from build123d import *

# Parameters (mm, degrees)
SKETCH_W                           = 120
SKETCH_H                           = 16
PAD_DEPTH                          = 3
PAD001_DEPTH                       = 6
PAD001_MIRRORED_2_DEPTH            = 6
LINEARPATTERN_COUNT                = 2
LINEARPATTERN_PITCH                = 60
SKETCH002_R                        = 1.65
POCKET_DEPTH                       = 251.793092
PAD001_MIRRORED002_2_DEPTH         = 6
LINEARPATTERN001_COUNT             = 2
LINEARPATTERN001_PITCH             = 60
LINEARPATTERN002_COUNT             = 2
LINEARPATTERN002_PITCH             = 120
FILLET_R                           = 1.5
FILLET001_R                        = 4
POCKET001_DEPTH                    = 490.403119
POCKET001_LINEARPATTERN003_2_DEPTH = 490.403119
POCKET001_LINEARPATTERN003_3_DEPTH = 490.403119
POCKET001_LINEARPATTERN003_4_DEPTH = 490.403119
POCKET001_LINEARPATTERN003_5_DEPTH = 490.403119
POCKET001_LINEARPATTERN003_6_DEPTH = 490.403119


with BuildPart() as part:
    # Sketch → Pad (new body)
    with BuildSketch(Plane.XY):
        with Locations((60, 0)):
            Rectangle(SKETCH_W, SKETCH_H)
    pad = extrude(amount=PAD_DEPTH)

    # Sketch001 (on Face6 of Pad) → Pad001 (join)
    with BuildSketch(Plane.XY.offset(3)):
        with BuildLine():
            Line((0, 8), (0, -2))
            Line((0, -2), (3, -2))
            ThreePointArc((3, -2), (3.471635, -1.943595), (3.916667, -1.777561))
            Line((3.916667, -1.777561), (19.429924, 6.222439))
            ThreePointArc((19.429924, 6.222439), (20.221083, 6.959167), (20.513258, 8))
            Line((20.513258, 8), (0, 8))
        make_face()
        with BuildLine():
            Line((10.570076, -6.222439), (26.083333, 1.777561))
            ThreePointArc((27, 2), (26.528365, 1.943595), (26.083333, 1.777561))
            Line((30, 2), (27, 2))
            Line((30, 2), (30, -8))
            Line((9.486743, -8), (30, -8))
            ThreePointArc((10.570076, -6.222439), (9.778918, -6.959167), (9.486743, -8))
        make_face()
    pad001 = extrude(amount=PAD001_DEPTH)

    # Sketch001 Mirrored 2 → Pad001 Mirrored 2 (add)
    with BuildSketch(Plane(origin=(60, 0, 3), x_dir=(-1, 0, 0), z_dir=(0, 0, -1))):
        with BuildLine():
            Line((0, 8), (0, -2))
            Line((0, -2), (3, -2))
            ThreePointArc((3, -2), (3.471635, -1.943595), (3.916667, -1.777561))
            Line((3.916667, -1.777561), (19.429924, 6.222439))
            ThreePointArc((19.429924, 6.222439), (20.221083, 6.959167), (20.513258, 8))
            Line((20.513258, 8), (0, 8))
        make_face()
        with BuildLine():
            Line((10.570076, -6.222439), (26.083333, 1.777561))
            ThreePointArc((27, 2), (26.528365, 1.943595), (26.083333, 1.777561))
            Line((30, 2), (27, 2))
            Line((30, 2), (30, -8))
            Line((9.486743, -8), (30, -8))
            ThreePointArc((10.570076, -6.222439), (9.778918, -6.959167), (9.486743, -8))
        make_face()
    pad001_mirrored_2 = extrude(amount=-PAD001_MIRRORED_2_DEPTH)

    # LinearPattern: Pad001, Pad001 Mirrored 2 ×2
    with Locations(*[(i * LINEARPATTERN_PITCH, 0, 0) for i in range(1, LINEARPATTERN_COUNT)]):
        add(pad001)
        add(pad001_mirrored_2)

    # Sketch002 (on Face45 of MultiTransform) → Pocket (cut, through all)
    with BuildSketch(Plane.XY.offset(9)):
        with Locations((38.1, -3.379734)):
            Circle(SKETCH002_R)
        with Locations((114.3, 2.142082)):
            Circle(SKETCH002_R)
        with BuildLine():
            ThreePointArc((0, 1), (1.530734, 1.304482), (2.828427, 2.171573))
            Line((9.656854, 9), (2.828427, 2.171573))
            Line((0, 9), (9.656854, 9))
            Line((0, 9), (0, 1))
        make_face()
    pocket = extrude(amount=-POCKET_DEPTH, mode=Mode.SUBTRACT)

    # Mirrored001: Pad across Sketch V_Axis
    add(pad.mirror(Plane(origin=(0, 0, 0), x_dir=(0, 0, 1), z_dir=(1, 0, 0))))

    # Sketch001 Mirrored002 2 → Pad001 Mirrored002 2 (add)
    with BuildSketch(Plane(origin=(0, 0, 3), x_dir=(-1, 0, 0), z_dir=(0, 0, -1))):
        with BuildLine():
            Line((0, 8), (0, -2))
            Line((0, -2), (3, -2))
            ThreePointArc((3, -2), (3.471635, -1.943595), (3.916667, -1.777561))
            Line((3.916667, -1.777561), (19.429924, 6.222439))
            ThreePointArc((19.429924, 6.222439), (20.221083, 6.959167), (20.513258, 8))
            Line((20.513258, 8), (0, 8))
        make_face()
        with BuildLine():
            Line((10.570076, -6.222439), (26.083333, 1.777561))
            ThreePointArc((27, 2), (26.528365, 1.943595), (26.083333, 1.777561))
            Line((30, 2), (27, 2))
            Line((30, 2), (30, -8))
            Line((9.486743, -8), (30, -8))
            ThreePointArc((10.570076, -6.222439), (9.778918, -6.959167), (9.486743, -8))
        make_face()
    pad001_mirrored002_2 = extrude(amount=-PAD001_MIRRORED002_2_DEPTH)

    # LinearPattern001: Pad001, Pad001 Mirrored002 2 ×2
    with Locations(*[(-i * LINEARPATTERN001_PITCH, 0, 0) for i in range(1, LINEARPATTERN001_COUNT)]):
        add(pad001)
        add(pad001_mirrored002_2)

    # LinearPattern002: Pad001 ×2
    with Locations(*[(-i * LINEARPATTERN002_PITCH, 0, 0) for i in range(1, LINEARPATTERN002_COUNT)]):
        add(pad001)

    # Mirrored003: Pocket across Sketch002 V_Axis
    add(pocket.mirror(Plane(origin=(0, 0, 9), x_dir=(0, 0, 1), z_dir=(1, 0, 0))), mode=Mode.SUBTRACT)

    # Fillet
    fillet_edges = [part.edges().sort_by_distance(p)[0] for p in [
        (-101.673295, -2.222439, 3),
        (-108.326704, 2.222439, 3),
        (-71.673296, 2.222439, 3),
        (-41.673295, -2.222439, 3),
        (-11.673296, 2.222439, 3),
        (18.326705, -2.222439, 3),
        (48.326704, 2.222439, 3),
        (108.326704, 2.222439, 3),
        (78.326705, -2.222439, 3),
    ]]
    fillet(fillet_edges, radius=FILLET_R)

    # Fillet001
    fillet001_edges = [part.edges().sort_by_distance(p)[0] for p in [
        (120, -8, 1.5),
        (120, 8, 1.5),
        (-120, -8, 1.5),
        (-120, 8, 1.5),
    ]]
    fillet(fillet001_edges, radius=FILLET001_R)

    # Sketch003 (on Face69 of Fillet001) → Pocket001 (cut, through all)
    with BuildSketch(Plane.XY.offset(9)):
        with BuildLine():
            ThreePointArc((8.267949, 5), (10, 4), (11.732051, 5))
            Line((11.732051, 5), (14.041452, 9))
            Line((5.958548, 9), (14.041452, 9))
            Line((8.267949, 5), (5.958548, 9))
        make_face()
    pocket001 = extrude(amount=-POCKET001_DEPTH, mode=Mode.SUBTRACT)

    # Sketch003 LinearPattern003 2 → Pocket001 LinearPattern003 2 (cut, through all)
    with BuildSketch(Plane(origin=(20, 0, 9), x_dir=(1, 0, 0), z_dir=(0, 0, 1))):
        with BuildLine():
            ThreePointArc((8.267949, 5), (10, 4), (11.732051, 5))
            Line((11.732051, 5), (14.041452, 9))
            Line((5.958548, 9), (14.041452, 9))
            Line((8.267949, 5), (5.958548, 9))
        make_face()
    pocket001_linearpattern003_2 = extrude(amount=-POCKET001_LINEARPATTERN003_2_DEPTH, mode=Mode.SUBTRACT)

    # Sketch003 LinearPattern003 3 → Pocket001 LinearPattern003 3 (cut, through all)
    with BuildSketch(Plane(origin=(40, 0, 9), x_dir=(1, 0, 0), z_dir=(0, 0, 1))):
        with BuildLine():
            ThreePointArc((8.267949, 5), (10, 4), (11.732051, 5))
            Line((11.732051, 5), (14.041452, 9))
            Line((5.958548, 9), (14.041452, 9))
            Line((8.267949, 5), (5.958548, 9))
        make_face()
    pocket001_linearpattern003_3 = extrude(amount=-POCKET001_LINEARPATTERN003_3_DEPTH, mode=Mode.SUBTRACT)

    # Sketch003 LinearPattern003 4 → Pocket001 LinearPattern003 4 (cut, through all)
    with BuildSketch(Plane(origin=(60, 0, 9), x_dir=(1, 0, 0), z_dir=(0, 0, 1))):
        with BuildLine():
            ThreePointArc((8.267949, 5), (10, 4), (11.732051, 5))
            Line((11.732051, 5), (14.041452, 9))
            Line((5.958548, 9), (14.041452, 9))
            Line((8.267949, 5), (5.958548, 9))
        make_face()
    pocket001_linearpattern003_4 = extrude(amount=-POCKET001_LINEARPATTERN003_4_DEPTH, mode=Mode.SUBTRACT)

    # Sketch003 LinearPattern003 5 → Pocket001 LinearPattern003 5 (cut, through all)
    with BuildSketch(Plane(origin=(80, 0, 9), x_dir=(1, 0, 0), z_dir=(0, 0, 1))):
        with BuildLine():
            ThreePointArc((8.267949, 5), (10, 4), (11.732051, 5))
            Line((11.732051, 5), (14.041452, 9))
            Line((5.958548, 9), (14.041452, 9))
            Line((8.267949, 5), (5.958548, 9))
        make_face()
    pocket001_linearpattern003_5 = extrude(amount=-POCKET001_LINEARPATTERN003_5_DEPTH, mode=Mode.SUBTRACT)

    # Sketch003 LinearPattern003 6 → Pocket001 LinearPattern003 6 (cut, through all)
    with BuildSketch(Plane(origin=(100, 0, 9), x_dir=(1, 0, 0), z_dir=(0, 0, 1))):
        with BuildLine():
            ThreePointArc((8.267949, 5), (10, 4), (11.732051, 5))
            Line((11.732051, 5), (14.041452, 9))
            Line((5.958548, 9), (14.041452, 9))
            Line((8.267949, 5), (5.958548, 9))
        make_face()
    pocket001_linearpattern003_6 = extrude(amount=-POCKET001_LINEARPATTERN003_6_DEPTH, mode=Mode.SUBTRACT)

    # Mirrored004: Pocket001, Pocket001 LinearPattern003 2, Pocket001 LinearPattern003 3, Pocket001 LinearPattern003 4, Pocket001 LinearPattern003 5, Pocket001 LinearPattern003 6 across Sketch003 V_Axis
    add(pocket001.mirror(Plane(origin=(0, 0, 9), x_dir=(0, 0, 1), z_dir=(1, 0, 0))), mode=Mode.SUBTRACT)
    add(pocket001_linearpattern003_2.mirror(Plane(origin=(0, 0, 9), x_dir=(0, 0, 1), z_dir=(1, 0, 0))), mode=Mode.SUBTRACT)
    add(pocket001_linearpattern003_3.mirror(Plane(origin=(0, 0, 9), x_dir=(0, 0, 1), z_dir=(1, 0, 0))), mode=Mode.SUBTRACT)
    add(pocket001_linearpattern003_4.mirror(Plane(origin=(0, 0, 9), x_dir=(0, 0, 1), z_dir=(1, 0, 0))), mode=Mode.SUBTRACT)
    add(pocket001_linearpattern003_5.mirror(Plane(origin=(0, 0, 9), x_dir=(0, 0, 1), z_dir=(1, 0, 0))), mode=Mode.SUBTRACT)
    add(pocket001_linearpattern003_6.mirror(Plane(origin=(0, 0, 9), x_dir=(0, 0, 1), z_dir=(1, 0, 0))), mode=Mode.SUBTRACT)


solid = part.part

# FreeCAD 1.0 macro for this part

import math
import FreeCAD as App
import Part
import Sketcher
from FreeCAD import Vector
Q = App.Units.Quantity


def edges_at(feature, points):
    """Names of the edges that pass closest to the given points."""
    edges = feature.Shape.Edges
    near = lambda p: min(range(len(edges)), key=lambda i: edges[i].distToShape(Part.Vertex(*p))[0])
    return sorted({f"Edge{near(p) + 1}" for p in points})

doc = App.newDocument("Part")
body = doc.addObject("PartDesign::Body", "Body")

sketch1 = doc.addObject("Sketcher::SketchObject", "Sketch")
body.addObject(sketch1)
sketch1.AttachmentSupport = (doc.XY_Plane, [""])
sketch1.MapMode = "FlatFace"
sketch1.addGeometry(Part.LineSegment(Vector(0, 8, 0), Vector(0, -8, 0)), False)
sketch1.addGeometry(Part.LineSegment(Vector(0, -8, 0), Vector(120, -8, 0)), False)
sketch1.addGeometry(Part.LineSegment(Vector(120, -8, 0), Vector(120, 8, 0)), False)
sketch1.addGeometry(Part.LineSegment(Vector(120, 8, 0), Vector(0, 8, 0)), False)
sketch1.addConstraint(Sketcher.Constraint("Coincident", 0, 2, 1, 1))
sketch1.addConstraint(Sketcher.Constraint("Coincident", 1, 2, 2, 1))
sketch1.addConstraint(Sketcher.Constraint("Coincident", 2, 2, 3, 1))
sketch1.addConstraint(Sketcher.Constraint("Coincident", 3, 2, 0, 1))
sketch1.addConstraint(Sketcher.Constraint("Vertical", 0))
sketch1.addConstraint(Sketcher.Constraint("Horizontal", 1))
sketch1.addConstraint(Sketcher.Constraint("Vertical", 2))
sketch1.addConstraint(Sketcher.Constraint("Horizontal", 3))
sketch1.addConstraint(Sketcher.Constraint("Symmetric", 0, 2, 3, 2, -1, 1))
sketch1.addConstraint(Sketcher.Constraint("DistanceX", 1, 1, 1, 2, 120.0))
sketch1.addConstraint(Sketcher.Constraint("DistanceY", 0, 2, 0, 1, 16.0))
pad1 = doc.addObject("PartDesign::Pad", "Pad")
body.addObject(pad1)
pad1.Profile = sketch1
pad1.Length = 3

sketch2 = doc.addObject("Sketcher::SketchObject", "Sketch001")
body.addObject(sketch2)
sketch2.AttachmentSupport = (doc.XY_Plane, [""])
sketch2.MapMode = "FlatFace"
sketch2.AttachmentOffset = App.Placement(Vector(0, 0, 3), App.Rotation())
sketch2.addGeometry(Part.LineSegment(Vector(0, 8, 0), Vector(0, -2, 0)), False)
sketch2.addGeometry(Part.LineSegment(Vector(0, -2, 0), Vector(3, -2, 0)), False)
sketch2.addGeometry(Part.ArcOfCircle(Part.Circle(Vector(3, 0, 0), Vector(0, 0, 1), 2), math.radians(-90), math.radians(-63)), False)
sketch2.addGeometry(Part.LineSegment(Vector(3.9, -1.8, 0), Vector(19.4, 6.2, 0)), False)
sketch2.addGeometry(Part.ArcOfCircle(Part.Circle(Vector(18.5, 8, 0), Vector(0, 0, 1), 2), math.radians(-63), math.radians(0)), False)
sketch2.addGeometry(Part.LineSegment(Vector(20.5, 8, 0), Vector(0, 8, 0)), False)
sketch2.addGeometry(Part.LineSegment(Vector(26.1, 1.8, 0), Vector(10.6, -6.2, 0)), False)
sketch2.addGeometry(Part.ArcOfCircle(Part.Circle(Vector(11.5, -8, 0), Vector(0, 0, 1), 2), math.radians(117), math.radians(180)), False)
sketch2.addGeometry(Part.LineSegment(Vector(9.5, -8, 0), Vector(30, -8, 0)), False)
sketch2.addGeometry(Part.LineSegment(Vector(30, -8, 0), Vector(30, 2, 0)), False)
sketch2.addGeometry(Part.LineSegment(Vector(30, 2, 0), Vector(27, 2, 0)), False)
sketch2.addGeometry(Part.ArcOfCircle(Part.Circle(Vector(27, 0, 0), Vector(0, 0, 1), 2), math.radians(90), math.radians(117)), False)
sketch2.addConstraint(Sketcher.Constraint("Coincident", 0, 2, 1, 1))
sketch2.addConstraint(Sketcher.Constraint("Tangent", 1, 2, 2, 1))
sketch2.addConstraint(Sketcher.Constraint("Tangent", 2, 2, 3, 1))
sketch2.addConstraint(Sketcher.Constraint("Tangent", 3, 2, 4, 1))
sketch2.addConstraint(Sketcher.Constraint("Coincident", 4, 2, 5, 1))
sketch2.addConstraint(Sketcher.Constraint("Coincident", 5, 2, 0, 1))
sketch2.addConstraint(Sketcher.Constraint("Tangent", 6, 2, 7, 1))
sketch2.addConstraint(Sketcher.Constraint("Coincident", 7, 2, 8, 1))
sketch2.addConstraint(Sketcher.Constraint("Coincident", 8, 2, 9, 1))
sketch2.addConstraint(Sketcher.Constraint("Coincident", 9, 2, 10, 1))
sketch2.addConstraint(Sketcher.Constraint("Tangent", 10, 2, 11, 1))
sketch2.addConstraint(Sketcher.Constraint("Tangent", 11, 2, 6, 1))
sketch2.addConstraint(Sketcher.Constraint("Vertical", 0))
sketch2.addConstraint(Sketcher.Constraint("Horizontal", 1))
sketch2.addConstraint(Sketcher.Constraint("Horizontal", 5))
sketch2.addConstraint(Sketcher.Constraint("Horizontal", 8))
sketch2.addConstraint(Sketcher.Constraint("Vertical", 9))
sketch2.addConstraint(Sketcher.Constraint("Horizontal", 10))
sketch2.addConstraint(Sketcher.Constraint("Equal", 4, 7))
sketch2.addConstraint(Sketcher.Constraint("Equal", 2, 11))
sketch2.addConstraint(Sketcher.Constraint("PointOnObject", 0, 2, -2))
sketch2.addConstraint(Sketcher.Constraint("Parallel", 3, 6))
sketch2.addConstraint(Sketcher.Constraint("Equal", 5, 8))
sketch2.addConstraint(Sketcher.Constraint("Equal", 1, 10))
sketch2.addConstraint(Sketcher.Constraint("Equal", 0, 9))
sketch2.addConstraint(Sketcher.Constraint("Radius", 4, 2.0))
sketch2.addConstraint(Sketcher.Constraint("DistanceX", 1, 1, 1, 2, 3.0))
sketch2.addConstraint(Sketcher.Constraint("DistanceY", 0, 2, 0, 1, 10.0))
sketch2.addConstraint(Sketcher.Constraint("DistanceY", -1, 1, 4, 3, 8.0))
sketch2.addConstraint(Sketcher.Constraint("DistanceY", 7, 3, -1, 1, 8.000001))
sketch2.addConstraint(Sketcher.Constraint("DistanceX", -1, 1, 11, 3, 26.999999))
sketch2.addConstraint(Sketcher.Constraint("DistanceY", 0, 2, -1, 1, 2.0))
sketch2.addConstraint(Sketcher.Constraint("DistanceY", 2, 2, 3, 2, 8.0))
sketch2.addConstraint(Sketcher.Constraint("DistanceX", 5, 2, 5, 1, 20.513258))
pad2 = doc.addObject("PartDesign::Pad", "Pad001")
body.addObject(pad2)
pad2.Profile = sketch2
pad2.Length = 6

sketch3 = doc.addObject("Sketcher::SketchObject", "Sketch002")
body.addObject(sketch3)
sketch3.AttachmentSupport = (doc.XY_Plane, [""])
sketch3.MapMode = "FlatFace"
sketch3.AttachmentOffset = App.Placement(Vector(0, 0, 3), App.Rotation())
sketch3.addGeometry(Part.LineSegment(Vector(60, 8, 0), Vector(60, -2, 0)), False)
sketch3.addGeometry(Part.LineSegment(Vector(60, -2, 0), Vector(57, -2, 0)), False)
sketch3.addGeometry(Part.ArcOfCircle(Part.Circle(Vector(57, 0, 0), Vector(0, 0, 1), 2), math.radians(-117), math.radians(-90)), False)
sketch3.addGeometry(Part.LineSegment(Vector(56.1, -1.8, 0), Vector(40.6, 6.2, 0)), False)
sketch3.addGeometry(Part.ArcOfCircle(Part.Circle(Vector(41.5, 8, 0), Vector(0, 0, 1), 2), math.radians(-180), math.radians(-117)), False)
sketch3.addGeometry(Part.LineSegment(Vector(39.5, 8, 0), Vector(60, 8, 0)), False)
sketch3.addGeometry(Part.LineSegment(Vector(33.9, 1.8, 0), Vector(49.4, -6.2, 0)), False)
sketch3.addGeometry(Part.ArcOfCircle(Part.Circle(Vector(48.5, -8, 0), Vector(0, 0, 1), 2), math.radians(0), math.radians(63)), False)
sketch3.addGeometry(Part.LineSegment(Vector(50.5, -8, 0), Vector(30, -8, 0)), False)
sketch3.addGeometry(Part.LineSegment(Vector(30, -8, 0), Vector(30, 2, 0)), False)
sketch3.addGeometry(Part.LineSegment(Vector(30, 2, 0), Vector(33, 2, 0)), False)
sketch3.addGeometry(Part.ArcOfCircle(Part.Circle(Vector(33, 0, 0), Vector(0, 0, 1), 2), math.radians(63), math.radians(90)), False)
sketch3.addConstraint(Sketcher.Constraint("Coincident", 0, 2, 1, 1))
sketch3.addConstraint(Sketcher.Constraint("Tangent", 1, 2, 2, 2))
sketch3.addConstraint(Sketcher.Constraint("Tangent", 2, 1, 3, 1))
sketch3.addConstraint(Sketcher.Constraint("Tangent", 3, 2, 4, 2))
sketch3.addConstraint(Sketcher.Constraint("Coincident", 4, 1, 5, 1))
sketch3.addConstraint(Sketcher.Constraint("Coincident", 5, 2, 0, 1))
sketch3.addConstraint(Sketcher.Constraint("Tangent", 6, 2, 7, 2))
sketch3.addConstraint(Sketcher.Constraint("Coincident", 7, 1, 8, 1))
sketch3.addConstraint(Sketcher.Constraint("Coincident", 8, 2, 9, 1))
sketch3.addConstraint(Sketcher.Constraint("Coincident", 9, 2, 10, 1))
sketch3.addConstraint(Sketcher.Constraint("Tangent", 10, 2, 11, 2))
sketch3.addConstraint(Sketcher.Constraint("Tangent", 11, 1, 6, 1))
sketch3.addConstraint(Sketcher.Constraint("Vertical", 0))
sketch3.addConstraint(Sketcher.Constraint("Horizontal", 1))
sketch3.addConstraint(Sketcher.Constraint("Horizontal", 5))
sketch3.addConstraint(Sketcher.Constraint("Horizontal", 8))
sketch3.addConstraint(Sketcher.Constraint("Vertical", 9))
sketch3.addConstraint(Sketcher.Constraint("Horizontal", 10))
sketch3.addConstraint(Sketcher.Constraint("Equal", 4, 7))
sketch3.addConstraint(Sketcher.Constraint("Equal", 2, 11))
sketch3.addConstraint(Sketcher.Constraint("Parallel", 3, 6))
sketch3.addConstraint(Sketcher.Constraint("Equal", 5, 8))
sketch3.addConstraint(Sketcher.Constraint("Equal", 1, 10))
sketch3.addConstraint(Sketcher.Constraint("Equal", 0, 9))
sketch3.addConstraint(Sketcher.Constraint("Radius", 4, 2.0))
sketch3.addConstraint(Sketcher.Constraint("DistanceX", 1, 2, 1, 1, 3.0))
sketch3.addConstraint(Sketcher.Constraint("DistanceY", 0, 2, 0, 1, 10.0))
sketch3.addConstraint(Sketcher.Constraint("DistanceX", -1, 1, 2, 3, 56.999998))
sketch3.addConstraint(Sketcher.Constraint("DistanceY", -1, 1, 4, 3, 8.0))
sketch3.addConstraint(Sketcher.Constraint("DistanceY", 7, 3, -1, 1, 8.000001))
sketch3.addConstraint(Sketcher.Constraint("DistanceX", -1, 1, 11, 3, 33.000002))
sketch3.addConstraint(Sketcher.Constraint("DistanceY", 0, 2, -1, 1, 2.0))
sketch3.addConstraint(Sketcher.Constraint("DistanceY", 2, 1, 3, 2, 8.0))
sketch3.addConstraint(Sketcher.Constraint("DistanceX", 5, 1, 5, 2, 20.513258))
pad3 = doc.addObject("PartDesign::Pad", "Pad002")
body.addObject(pad3)
pad3.Profile = sketch3
pad3.Length = 6
doc.recompute()

linearpattern = doc.addObject("PartDesign::LinearPattern", "LinearPattern")
body.addObject(linearpattern)
linearpattern.Originals = [pad2, pad3]
linearpattern.Direction = (doc.X_Axis, [""])
linearpattern.Mode = "offset"
linearpattern.Offset = 60
linearpattern.Occurrences = 2
body.Tip = linearpattern

sketch4 = doc.addObject("Sketcher::SketchObject", "Sketch003")
body.addObject(sketch4)
sketch4.AttachmentSupport = (doc.XY_Plane, [""])
sketch4.MapMode = "FlatFace"
sketch4.AttachmentOffset = App.Placement(Vector(0, 0, 9), App.Rotation())
sketch4.addGeometry(Part.Circle(Vector(38.1, -3.4, 0), Vector(0, 0, 1), 1.6), False)
sketch4.addGeometry(Part.Circle(Vector(114.3, 2.1, 0), Vector(0, 0, 1), 1.6), False)
sketch4.addGeometry(Part.ArcOfCircle(Part.Circle(Vector(0, 5, 0), Vector(0, 0, 1), 4), math.radians(-90), math.radians(-45)), False)
sketch4.addGeometry(Part.LineSegment(Vector(2.8, 2.2, 0), Vector(9.7, 9, 0)), False)
sketch4.addGeometry(Part.LineSegment(Vector(9.7, 9, 0), Vector(0, 9, 0)), False)
sketch4.addGeometry(Part.LineSegment(Vector(0, 9, 0), Vector(0, 1, 0)), False)
sketch4.addConstraint(Sketcher.Constraint("Tangent", 2, 2, 3, 1))
sketch4.addConstraint(Sketcher.Constraint("Coincident", 3, 2, 4, 1))
sketch4.addConstraint(Sketcher.Constraint("Coincident", 4, 2, 5, 1))
sketch4.addConstraint(Sketcher.Constraint("Coincident", 5, 2, 2, 1))
sketch4.addConstraint(Sketcher.Constraint("Horizontal", 4))
sketch4.addConstraint(Sketcher.Constraint("Vertical", 5))
sketch4.addConstraint(Sketcher.Constraint("Equal", 0, 1))
sketch4.addConstraint(Sketcher.Constraint("PointOnObject", 2, 3, -2))
sketch4.addConstraint(Sketcher.Constraint("PointOnObject", 4, 2, -2))
sketch4.addConstraint(Sketcher.Constraint("Radius", 2, 3.999999))
sketch4.addConstraint(Sketcher.Constraint("Diameter", 0, 3.3))
sketch4.addConstraint(Sketcher.Constraint("DistanceY", 5, 2, 5, 1, 8.0))
sketch4.addConstraint(Sketcher.Constraint("Angle", 3, Q("45 deg")))
sketch4.addConstraint(Sketcher.Constraint("DistanceY", -1, 1, 2, 3, 4.999999))
sketch4.addConstraint(Sketcher.Constraint("DistanceX", -1, 1, 0, 3, 38.1))
sketch4.addConstraint(Sketcher.Constraint("DistanceX", -1, 1, 1, 3, 114.3))
sketch4.addConstraint(Sketcher.Constraint("DistanceY", -1, 1, 1, 3, 2.142082))
sketch4.addConstraint(Sketcher.Constraint("DistanceY", 0, 3, -1, 1, 3.379734))
pocket1 = doc.addObject("PartDesign::Pocket", "Pocket")
body.addObject(pocket1)
pocket1.Profile = sketch4
pocket1.Type = "ThroughAll"
doc.recompute()

mirrored = doc.addObject("PartDesign::Mirrored", "Mirrored")
body.addObject(mirrored)
mirrored.Originals = [pad1]
mirrored.MirrorPlane = (doc.YZ_Plane, [""])
body.Tip = mirrored

sketch5 = doc.addObject("Sketcher::SketchObject", "Sketch004")
body.addObject(sketch5)
sketch5.AttachmentSupport = (doc.XY_Plane, [""])
sketch5.MapMode = "FlatFace"
sketch5.AttachmentOffset = App.Placement(Vector(0, 0, 3), App.Rotation())
sketch5.addGeometry(Part.LineSegment(Vector(0, 8, 0), Vector(0, -2, 0)), False)
sketch5.addGeometry(Part.LineSegment(Vector(0, -2, 0), Vector(-3, -2, 0)), False)
sketch5.addGeometry(Part.ArcOfCircle(Part.Circle(Vector(-3, 0, 0), Vector(0, 0, 1), 2), math.radians(-117), math.radians(-90)), False)
sketch5.addGeometry(Part.LineSegment(Vector(-3.9, -1.8, 0), Vector(-19.4, 6.2, 0)), False)
sketch5.addGeometry(Part.ArcOfCircle(Part.Circle(Vector(-18.5, 8, 0), Vector(0, 0, 1), 2), math.radians(-180), math.radians(-117)), False)
sketch5.addGeometry(Part.LineSegment(Vector(-20.5, 8, 0), Vector(0, 8, 0)), False)
sketch5.addGeometry(Part.LineSegment(Vector(-26.1, 1.8, 0), Vector(-10.6, -6.2, 0)), False)
sketch5.addGeometry(Part.ArcOfCircle(Part.Circle(Vector(-11.5, -8, 0), Vector(0, 0, 1), 2), math.radians(0), math.radians(63)), False)
sketch5.addGeometry(Part.LineSegment(Vector(-9.5, -8, 0), Vector(-30, -8, 0)), False)
sketch5.addGeometry(Part.LineSegment(Vector(-30, -8, 0), Vector(-30, 2, 0)), False)
sketch5.addGeometry(Part.LineSegment(Vector(-30, 2, 0), Vector(-27, 2, 0)), False)
sketch5.addGeometry(Part.ArcOfCircle(Part.Circle(Vector(-27, 0, 0), Vector(0, 0, 1), 2), math.radians(63), math.radians(90)), False)
sketch5.addConstraint(Sketcher.Constraint("Coincident", 0, 2, 1, 1))
sketch5.addConstraint(Sketcher.Constraint("Tangent", 1, 2, 2, 2))
sketch5.addConstraint(Sketcher.Constraint("Tangent", 2, 1, 3, 1))
sketch5.addConstraint(Sketcher.Constraint("Tangent", 3, 2, 4, 2))
sketch5.addConstraint(Sketcher.Constraint("Coincident", 4, 1, 5, 1))
sketch5.addConstraint(Sketcher.Constraint("Coincident", 5, 2, 0, 1))
sketch5.addConstraint(Sketcher.Constraint("Tangent", 6, 2, 7, 2))
sketch5.addConstraint(Sketcher.Constraint("Coincident", 7, 1, 8, 1))
sketch5.addConstraint(Sketcher.Constraint("Coincident", 8, 2, 9, 1))
sketch5.addConstraint(Sketcher.Constraint("Coincident", 9, 2, 10, 1))
sketch5.addConstraint(Sketcher.Constraint("Tangent", 10, 2, 11, 2))
sketch5.addConstraint(Sketcher.Constraint("Tangent", 11, 1, 6, 1))
sketch5.addConstraint(Sketcher.Constraint("Vertical", 0))
sketch5.addConstraint(Sketcher.Constraint("Horizontal", 1))
sketch5.addConstraint(Sketcher.Constraint("Horizontal", 5))
sketch5.addConstraint(Sketcher.Constraint("Horizontal", 8))
sketch5.addConstraint(Sketcher.Constraint("Vertical", 9))
sketch5.addConstraint(Sketcher.Constraint("Horizontal", 10))
sketch5.addConstraint(Sketcher.Constraint("Equal", 4, 7))
sketch5.addConstraint(Sketcher.Constraint("Equal", 2, 11))
sketch5.addConstraint(Sketcher.Constraint("PointOnObject", 0, 2, -2))
sketch5.addConstraint(Sketcher.Constraint("Parallel", 3, 6))
sketch5.addConstraint(Sketcher.Constraint("Equal", 5, 8))
sketch5.addConstraint(Sketcher.Constraint("Equal", 1, 10))
sketch5.addConstraint(Sketcher.Constraint("Equal", 0, 9))
sketch5.addConstraint(Sketcher.Constraint("Radius", 4, 2.0))
sketch5.addConstraint(Sketcher.Constraint("DistanceX", 1, 2, 1, 1, 3.0))
sketch5.addConstraint(Sketcher.Constraint("DistanceY", 0, 2, 0, 1, 10.0))
sketch5.addConstraint(Sketcher.Constraint("DistanceY", -1, 1, 4, 3, 8.0))
sketch5.addConstraint(Sketcher.Constraint("DistanceY", 7, 3, -1, 1, 8.000001))
sketch5.addConstraint(Sketcher.Constraint("DistanceX", 11, 3, -1, 1, 26.999999))
sketch5.addConstraint(Sketcher.Constraint("DistanceY", 0, 2, -1, 1, 2.0))
sketch5.addConstraint(Sketcher.Constraint("DistanceY", 2, 1, 3, 2, 8.0))
sketch5.addConstraint(Sketcher.Constraint("DistanceX", 5, 1, 5, 2, 20.513258))
pad4 = doc.addObject("PartDesign::Pad", "Pad003")
body.addObject(pad4)
pad4.Profile = sketch5
pad4.Length = 6
doc.recompute()

linearpattern2 = doc.addObject("PartDesign::LinearPattern", "LinearPattern001")
body.addObject(linearpattern2)
linearpattern2.Originals = [pad2, pad4]
linearpattern2.Direction = (doc.X_Axis, [""])
linearpattern2.Mode = "offset"
linearpattern2.Offset = 60
linearpattern2.Occurrences = 2
linearpattern2.Reversed = True
body.Tip = linearpattern2
doc.recompute()

linearpattern3 = doc.addObject("PartDesign::LinearPattern", "LinearPattern002")
body.addObject(linearpattern3)
linearpattern3.Originals = [pad2]
linearpattern3.Direction = (doc.X_Axis, [""])
linearpattern3.Mode = "offset"
linearpattern3.Offset = 120
linearpattern3.Occurrences = 2
linearpattern3.Reversed = True
body.Tip = linearpattern3
doc.recompute()

mirrored2 = doc.addObject("PartDesign::Mirrored", "Mirrored001")
body.addObject(mirrored2)
mirrored2.Originals = [pocket1]
mirrored2.MirrorPlane = (doc.YZ_Plane, [""])
body.Tip = mirrored2
doc.recompute()

fillet = doc.addObject("PartDesign::Fillet", "Fillet")
body.addObject(fillet)
fillet.Base = (mirrored2, edges_at(mirrored2, [
    (-101.673, -2.222, 3),
    (-108.327, 2.222, 3),
    (-71.673, 2.222, 3),
    (-41.673, -2.222, 3),
    (-11.673, 2.222, 3),
    (18.327, -2.222, 3),
    (48.327, 2.222, 3),
    (108.327, 2.222, 3),
    (78.327, -2.222, 3),
]))
fillet.Radius = 1.5
doc.recompute()

fillet2 = doc.addObject("PartDesign::Fillet", "Fillet001")
body.addObject(fillet2)
fillet2.Base = (fillet, edges_at(fillet, [
    (120, -8, 1.5),
    (120, 8, 4.5),
    (-120, -8, 1.5),
    (-120, 8, 4.5),
]))
fillet2.Radius = 4

sketch6 = doc.addObject("Sketcher::SketchObject", "Sketch005")
body.addObject(sketch6)
sketch6.AttachmentSupport = (doc.XY_Plane, [""])
sketch6.MapMode = "FlatFace"
sketch6.AttachmentOffset = App.Placement(Vector(0, 0, 9), App.Rotation())
sketch6.addGeometry(Part.ArcOfCircle(Part.Circle(Vector(10, 6, 0), Vector(0, 0, 1), 2), math.radians(-150), math.radians(-30)), False)
sketch6.addGeometry(Part.LineSegment(Vector(11.7, 5, 0), Vector(14, 9, 0)), False)
sketch6.addGeometry(Part.LineSegment(Vector(14, 9, 0), Vector(6, 9, 0)), False)
sketch6.addGeometry(Part.LineSegment(Vector(6, 9, 0), Vector(8.3, 5, 0)), False)
sketch6.addConstraint(Sketcher.Constraint("Tangent", 0, 2, 1, 1))
sketch6.addConstraint(Sketcher.Constraint("Coincident", 1, 2, 2, 1))
sketch6.addConstraint(Sketcher.Constraint("Coincident", 2, 2, 3, 1))
sketch6.addConstraint(Sketcher.Constraint("Tangent", 3, 2, 0, 1))
sketch6.addConstraint(Sketcher.Constraint("Horizontal", 2))
sketch6.addConstraint(Sketcher.Constraint("Horizontal", 0, 2, 3, 2))
sketch6.addConstraint(Sketcher.Constraint("Radius", 0, 2.0))
sketch6.addConstraint(Sketcher.Constraint("Angle", 1, Q("60.000001 deg")))
sketch6.addConstraint(Sketcher.Constraint("DistanceX", -1, 1, 0, 3, 10.0))
sketch6.addConstraint(Sketcher.Constraint("DistanceY", -1, 1, 0, 3, 6.0))
sketch6.addConstraint(Sketcher.Constraint("DistanceY", -1, 1, 1, 2, 9.0))
pocket2 = doc.addObject("PartDesign::Pocket", "Pocket001")
body.addObject(pocket2)
pocket2.Profile = sketch6
pocket2.Type = "ThroughAll"

sketch7 = doc.addObject("Sketcher::SketchObject", "Sketch006")
body.addObject(sketch7)
sketch7.AttachmentSupport = (doc.XY_Plane, [""])
sketch7.MapMode = "FlatFace"
sketch7.AttachmentOffset = App.Placement(Vector(0, 0, 9), App.Rotation())
sketch7.addGeometry(Part.ArcOfCircle(Part.Circle(Vector(30, 6, 0), Vector(0, 0, 1), 2), math.radians(-150), math.radians(-30)), False)
sketch7.addGeometry(Part.LineSegment(Vector(31.7, 5, 0), Vector(34, 9, 0)), False)
sketch7.addGeometry(Part.LineSegment(Vector(34, 9, 0), Vector(26, 9, 0)), False)
sketch7.addGeometry(Part.LineSegment(Vector(26, 9, 0), Vector(28.3, 5, 0)), False)
sketch7.addConstraint(Sketcher.Constraint("Tangent", 0, 2, 1, 1))
sketch7.addConstraint(Sketcher.Constraint("Coincident", 1, 2, 2, 1))
sketch7.addConstraint(Sketcher.Constraint("Coincident", 2, 2, 3, 1))
sketch7.addConstraint(Sketcher.Constraint("Tangent", 3, 2, 0, 1))
sketch7.addConstraint(Sketcher.Constraint("Horizontal", 2))
sketch7.addConstraint(Sketcher.Constraint("Horizontal", 0, 2, 3, 2))
sketch7.addConstraint(Sketcher.Constraint("Radius", 0, 2.0))
sketch7.addConstraint(Sketcher.Constraint("Angle", 1, Q("60.000001 deg")))
sketch7.addConstraint(Sketcher.Constraint("DistanceX", -1, 1, 0, 3, 30.0))
sketch7.addConstraint(Sketcher.Constraint("DistanceY", -1, 1, 0, 3, 6.0))
sketch7.addConstraint(Sketcher.Constraint("DistanceY", -1, 1, 1, 2, 9.0))
pocket3 = doc.addObject("PartDesign::Pocket", "Pocket002")
body.addObject(pocket3)
pocket3.Profile = sketch7
pocket3.Type = "ThroughAll"

sketch8 = doc.addObject("Sketcher::SketchObject", "Sketch007")
body.addObject(sketch8)
sketch8.AttachmentSupport = (doc.XY_Plane, [""])
sketch8.MapMode = "FlatFace"
sketch8.AttachmentOffset = App.Placement(Vector(0, 0, 9), App.Rotation())
sketch8.addGeometry(Part.ArcOfCircle(Part.Circle(Vector(50, 6, 0), Vector(0, 0, 1), 2), math.radians(-150), math.radians(-30)), False)
sketch8.addGeometry(Part.LineSegment(Vector(51.7, 5, 0), Vector(54, 9, 0)), False)
sketch8.addGeometry(Part.LineSegment(Vector(54, 9, 0), Vector(46, 9, 0)), False)
sketch8.addGeometry(Part.LineSegment(Vector(46, 9, 0), Vector(48.3, 5, 0)), False)
sketch8.addConstraint(Sketcher.Constraint("Tangent", 0, 2, 1, 1))
sketch8.addConstraint(Sketcher.Constraint("Coincident", 1, 2, 2, 1))
sketch8.addConstraint(Sketcher.Constraint("Coincident", 2, 2, 3, 1))
sketch8.addConstraint(Sketcher.Constraint("Tangent", 3, 2, 0, 1))
sketch8.addConstraint(Sketcher.Constraint("Horizontal", 2))
sketch8.addConstraint(Sketcher.Constraint("Horizontal", 0, 2, 3, 2))
sketch8.addConstraint(Sketcher.Constraint("Radius", 0, 2.0))
sketch8.addConstraint(Sketcher.Constraint("Angle", 1, Q("60.000001 deg")))
sketch8.addConstraint(Sketcher.Constraint("DistanceX", -1, 1, 0, 3, 50.0))
sketch8.addConstraint(Sketcher.Constraint("DistanceY", -1, 1, 0, 3, 6.0))
sketch8.addConstraint(Sketcher.Constraint("DistanceY", -1, 1, 1, 2, 9.0))
pocket4 = doc.addObject("PartDesign::Pocket", "Pocket003")
body.addObject(pocket4)
pocket4.Profile = sketch8
pocket4.Type = "ThroughAll"

sketch9 = doc.addObject("Sketcher::SketchObject", "Sketch008")
body.addObject(sketch9)
sketch9.AttachmentSupport = (doc.XY_Plane, [""])
sketch9.MapMode = "FlatFace"
sketch9.AttachmentOffset = App.Placement(Vector(0, 0, 9), App.Rotation())
sketch9.addGeometry(Part.ArcOfCircle(Part.Circle(Vector(70, 6, 0), Vector(0, 0, 1), 2), math.radians(-150), math.radians(-30)), False)
sketch9.addGeometry(Part.LineSegment(Vector(71.7, 5, 0), Vector(74, 9, 0)), False)
sketch9.addGeometry(Part.LineSegment(Vector(74, 9, 0), Vector(66, 9, 0)), False)
sketch9.addGeometry(Part.LineSegment(Vector(66, 9, 0), Vector(68.3, 5, 0)), False)
sketch9.addConstraint(Sketcher.Constraint("Tangent", 0, 2, 1, 1))
sketch9.addConstraint(Sketcher.Constraint("Coincident", 1, 2, 2, 1))
sketch9.addConstraint(Sketcher.Constraint("Coincident", 2, 2, 3, 1))
sketch9.addConstraint(Sketcher.Constraint("Tangent", 3, 2, 0, 1))
sketch9.addConstraint(Sketcher.Constraint("Horizontal", 2))
sketch9.addConstraint(Sketcher.Constraint("Horizontal", 0, 2, 3, 2))
sketch9.addConstraint(Sketcher.Constraint("Radius", 0, 2.0))
sketch9.addConstraint(Sketcher.Constraint("Angle", 1, Q("60.000001 deg")))
sketch9.addConstraint(Sketcher.Constraint("DistanceX", -1, 1, 0, 3, 70.0))
sketch9.addConstraint(Sketcher.Constraint("DistanceY", -1, 1, 0, 3, 6.0))
sketch9.addConstraint(Sketcher.Constraint("DistanceY", -1, 1, 1, 2, 9.0))
pocket5 = doc.addObject("PartDesign::Pocket", "Pocket004")
body.addObject(pocket5)
pocket5.Profile = sketch9
pocket5.Type = "ThroughAll"

sketch10 = doc.addObject("Sketcher::SketchObject", "Sketch009")
body.addObject(sketch10)
sketch10.AttachmentSupport = (doc.XY_Plane, [""])
sketch10.MapMode = "FlatFace"
sketch10.AttachmentOffset = App.Placement(Vector(0, 0, 9), App.Rotation())
sketch10.addGeometry(Part.ArcOfCircle(Part.Circle(Vector(90, 6, 0), Vector(0, 0, 1), 2), math.radians(-150), math.radians(-30)), False)
sketch10.addGeometry(Part.LineSegment(Vector(91.7, 5, 0), Vector(94, 9, 0)), False)
sketch10.addGeometry(Part.LineSegment(Vector(94, 9, 0), Vector(86, 9, 0)), False)
sketch10.addGeometry(Part.LineSegment(Vector(86, 9, 0), Vector(88.3, 5, 0)), False)
sketch10.addConstraint(Sketcher.Constraint("Tangent", 0, 2, 1, 1))
sketch10.addConstraint(Sketcher.Constraint("Coincident", 1, 2, 2, 1))
sketch10.addConstraint(Sketcher.Constraint("Coincident", 2, 2, 3, 1))
sketch10.addConstraint(Sketcher.Constraint("Tangent", 3, 2, 0, 1))
sketch10.addConstraint(Sketcher.Constraint("Horizontal", 2))
sketch10.addConstraint(Sketcher.Constraint("Horizontal", 0, 2, 3, 2))
sketch10.addConstraint(Sketcher.Constraint("Radius", 0, 2.0))
sketch10.addConstraint(Sketcher.Constraint("Angle", 1, Q("60.000001 deg")))
sketch10.addConstraint(Sketcher.Constraint("DistanceX", -1, 1, 0, 3, 90.0))
sketch10.addConstraint(Sketcher.Constraint("DistanceY", -1, 1, 0, 3, 6.0))
sketch10.addConstraint(Sketcher.Constraint("DistanceY", -1, 1, 1, 2, 9.0))
pocket6 = doc.addObject("PartDesign::Pocket", "Pocket005")
body.addObject(pocket6)
pocket6.Profile = sketch10
pocket6.Type = "ThroughAll"

sketch11 = doc.addObject("Sketcher::SketchObject", "Sketch010")
body.addObject(sketch11)
sketch11.AttachmentSupport = (doc.XY_Plane, [""])
sketch11.MapMode = "FlatFace"
sketch11.AttachmentOffset = App.Placement(Vector(0, 0, 9), App.Rotation())
sketch11.addGeometry(Part.ArcOfCircle(Part.Circle(Vector(110, 6, 0), Vector(0, 0, 1), 2), math.radians(-150), math.radians(-30)), False)
sketch11.addGeometry(Part.LineSegment(Vector(111.7, 5, 0), Vector(114, 9, 0)), False)
sketch11.addGeometry(Part.LineSegment(Vector(114, 9, 0), Vector(106, 9, 0)), False)
sketch11.addGeometry(Part.LineSegment(Vector(106, 9, 0), Vector(108.3, 5, 0)), False)
sketch11.addConstraint(Sketcher.Constraint("Tangent", 0, 2, 1, 1))
sketch11.addConstraint(Sketcher.Constraint("Coincident", 1, 2, 2, 1))
sketch11.addConstraint(Sketcher.Constraint("Coincident", 2, 2, 3, 1))
sketch11.addConstraint(Sketcher.Constraint("Tangent", 3, 2, 0, 1))
sketch11.addConstraint(Sketcher.Constraint("Horizontal", 2))
sketch11.addConstraint(Sketcher.Constraint("Horizontal", 0, 2, 3, 2))
sketch11.addConstraint(Sketcher.Constraint("Radius", 0, 2.0))
sketch11.addConstraint(Sketcher.Constraint("Angle", 1, Q("60.000001 deg")))
sketch11.addConstraint(Sketcher.Constraint("DistanceX", -1, 1, 0, 3, 110.0))
sketch11.addConstraint(Sketcher.Constraint("DistanceY", -1, 1, 0, 3, 6.0))
sketch11.addConstraint(Sketcher.Constraint("DistanceY", -1, 1, 1, 2, 9.0))
pocket7 = doc.addObject("PartDesign::Pocket", "Pocket006")
body.addObject(pocket7)
pocket7.Profile = sketch11
pocket7.Type = "ThroughAll"
doc.recompute()

mirrored3 = doc.addObject("PartDesign::Mirrored", "Mirrored002")
body.addObject(mirrored3)
mirrored3.Originals = [pocket2, pocket3, pocket4, pocket5, pocket6, pocket7]
mirrored3.MirrorPlane = (doc.YZ_Plane, [""])
body.Tip = mirrored3

doc.recompute()
